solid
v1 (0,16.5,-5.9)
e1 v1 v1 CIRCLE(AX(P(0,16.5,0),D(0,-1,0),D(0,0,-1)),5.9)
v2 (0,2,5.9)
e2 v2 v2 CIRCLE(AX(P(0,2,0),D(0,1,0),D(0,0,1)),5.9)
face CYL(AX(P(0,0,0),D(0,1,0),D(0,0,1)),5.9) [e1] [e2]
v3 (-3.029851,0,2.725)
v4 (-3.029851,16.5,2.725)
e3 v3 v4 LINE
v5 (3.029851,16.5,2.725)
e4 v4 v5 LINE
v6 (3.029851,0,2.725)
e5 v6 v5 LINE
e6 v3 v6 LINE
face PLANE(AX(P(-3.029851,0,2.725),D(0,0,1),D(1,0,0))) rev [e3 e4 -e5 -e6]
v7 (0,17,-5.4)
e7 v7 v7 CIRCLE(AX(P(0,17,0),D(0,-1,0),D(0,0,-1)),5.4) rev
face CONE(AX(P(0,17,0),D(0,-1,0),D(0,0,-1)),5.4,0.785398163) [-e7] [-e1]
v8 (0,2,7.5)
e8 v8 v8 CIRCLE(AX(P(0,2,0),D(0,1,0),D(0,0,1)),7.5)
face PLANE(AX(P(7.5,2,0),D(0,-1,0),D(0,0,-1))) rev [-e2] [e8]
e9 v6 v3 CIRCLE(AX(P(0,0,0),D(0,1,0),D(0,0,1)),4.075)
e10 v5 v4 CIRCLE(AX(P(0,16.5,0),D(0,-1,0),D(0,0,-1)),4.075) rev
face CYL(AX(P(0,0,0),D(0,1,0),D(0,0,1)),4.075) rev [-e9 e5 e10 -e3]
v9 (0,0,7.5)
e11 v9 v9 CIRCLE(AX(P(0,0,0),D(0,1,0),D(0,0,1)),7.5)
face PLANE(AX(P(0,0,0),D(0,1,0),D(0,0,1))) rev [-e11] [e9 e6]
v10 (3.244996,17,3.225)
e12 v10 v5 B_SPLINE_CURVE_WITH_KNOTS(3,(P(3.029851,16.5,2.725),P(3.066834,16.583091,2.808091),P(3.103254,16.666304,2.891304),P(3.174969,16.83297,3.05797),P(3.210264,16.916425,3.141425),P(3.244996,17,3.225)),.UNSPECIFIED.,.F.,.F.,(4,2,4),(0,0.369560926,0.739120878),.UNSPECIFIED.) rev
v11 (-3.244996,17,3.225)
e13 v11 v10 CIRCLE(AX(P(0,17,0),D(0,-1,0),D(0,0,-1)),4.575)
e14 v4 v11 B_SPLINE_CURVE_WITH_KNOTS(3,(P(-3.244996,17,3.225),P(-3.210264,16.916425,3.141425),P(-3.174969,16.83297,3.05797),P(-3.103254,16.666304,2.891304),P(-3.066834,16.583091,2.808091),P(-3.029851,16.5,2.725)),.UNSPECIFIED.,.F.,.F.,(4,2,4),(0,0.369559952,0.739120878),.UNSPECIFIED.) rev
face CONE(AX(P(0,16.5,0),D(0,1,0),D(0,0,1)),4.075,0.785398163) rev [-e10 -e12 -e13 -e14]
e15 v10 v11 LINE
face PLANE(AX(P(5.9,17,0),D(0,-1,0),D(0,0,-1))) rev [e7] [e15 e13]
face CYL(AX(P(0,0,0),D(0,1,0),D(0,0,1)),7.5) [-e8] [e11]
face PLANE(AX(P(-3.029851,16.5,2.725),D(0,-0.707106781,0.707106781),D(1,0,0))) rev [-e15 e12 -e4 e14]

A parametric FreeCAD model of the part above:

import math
import FreeCAD as App
import Part
import Sketcher
Q = App.Units.Quantity


def edges_at(feature, points):
    """Names of the edges that pass closest to the given points."""
    edges = feature.Shape.Edges
    near = lambda p: min(range(len(edges)), key=lambda i: edges[i].distToShape(Part.Vertex(*p))[0])
    return sorted({f"Edge{near(p) + 1}" for p in points})


def add_polygon(sketch, points):
    """Adds a closed chain of lines whose ends are joined by coincident constraints."""
    first, n = sketch.GeometryCount, len(points)
    for a, b in zip(points, points[1:] + points[:1]):
        sketch.addGeometry(Part.LineSegment(App.Vector(*a, 0), App.Vector(*b, 0)), False)
    for i in range(n):
        sketch.addConstraint(Sketcher.Constraint("Coincident", first + i, 2, first + (i + 1) % n, 1))

doc = App.newDocument("Part")
body = doc.addObject("PartDesign::Body", "Body")

# Sketch on XY plane
sketch1 = body.newObject("Sketcher::SketchObject", "Sketch")
sketch1.AttachmentSupport = (doc.getObject("XY_Plane"), [""])
sketch1.MapMode = "FlatFace"
add_polygon(sketch1, [(0, 0), (7.5, 0), (7.5, 2), (5.9, 2), (5.9, 17), (0, 17)])  # lines 0-5
sketch1.addConstraint([
    Sketcher.Constraint("Horizontal", 0),
    Sketcher.Constraint("Vertical", 1),
    Sketcher.Constraint("Horizontal", 2),
    Sketcher.Constraint("Vertical", 3),
    Sketcher.Constraint("Horizontal", 4),
    Sketcher.Constraint("Vertical", 5),
    Sketcher.Constraint("Coincident", 5, 2, -1, 1),
    Sketcher.Constraint("DistanceY", 1, 1, 1, 2, Q("2 mm")),
    Sketcher.Constraint("DistanceY", 3, 1, 3, 2, Q("15 mm")),
    Sketcher.Constraint("DistanceX", 0, 1, 0, 2, Q("7.5 mm")),
    Sketcher.Constraint("DistanceX", 2, 2, 2, 1, Q("1.6 mm")),
])
revolution = body.newObject("PartDesign::Revolution", "Revolution")
revolution.Profile = sketch1
revolution.ReferenceAxis = (sketch1, ["V_Axis"])
revolution.Angle = 360

# Sketch on XZ plane
sketch2 = body.newObject("Sketcher::SketchObject", "Sketch001")
sketch2.AttachmentSupport = (doc.getObject("XZ_Plane"), [""])
sketch2.MapMode = "FlatFace"
sketch2.AttachmentOffset = App.Placement(App.Vector(0, 0, -17), App.Rotation())
sketch2.addGeometry([
    Part.LineSegment(App.Vector(-3, 2.7, 0), App.Vector(3, 2.7, 0)),
    Part.ArcOfCircle(Part.Circle(App.Vector(0, 0, 0), App.Vector(0, 0, 1), 4.1), math.radians(138), math.radians(402)),
], False)
sketch2.addConstraint([
    Sketcher.Constraint("Coincident", 0, 1, 1, 1),
    Sketcher.Constraint("Coincident", 1, 2, 0, 2),
    Sketcher.Constraint("Horizontal", 0),
    Sketcher.Constraint("Coincident", 1, 3, -1, 1),
    Sketcher.Constraint("Radius", 1, Q("4.075 mm")),
    Sketcher.Constraint("DistanceY", -1, 1, 0, 1, Q("2.725 mm")),
])
pocket1 = body.newObject("PartDesign::Pocket", "Pocket")
pocket1.Profile = sketch2
pocket1.Type = "ThroughAll"
pocket1.Reversed = True
doc.recompute()

chamfer = body.newObject("PartDesign::Chamfer", "Chamfer")
chamfer.Base = (pocket1, edges_at(pocket1, [(0, 17, -4.075), (0, 17, 2.725), (0, 17, -5.9)]))
chamfer.Size = 0.5

doc.recompute()
